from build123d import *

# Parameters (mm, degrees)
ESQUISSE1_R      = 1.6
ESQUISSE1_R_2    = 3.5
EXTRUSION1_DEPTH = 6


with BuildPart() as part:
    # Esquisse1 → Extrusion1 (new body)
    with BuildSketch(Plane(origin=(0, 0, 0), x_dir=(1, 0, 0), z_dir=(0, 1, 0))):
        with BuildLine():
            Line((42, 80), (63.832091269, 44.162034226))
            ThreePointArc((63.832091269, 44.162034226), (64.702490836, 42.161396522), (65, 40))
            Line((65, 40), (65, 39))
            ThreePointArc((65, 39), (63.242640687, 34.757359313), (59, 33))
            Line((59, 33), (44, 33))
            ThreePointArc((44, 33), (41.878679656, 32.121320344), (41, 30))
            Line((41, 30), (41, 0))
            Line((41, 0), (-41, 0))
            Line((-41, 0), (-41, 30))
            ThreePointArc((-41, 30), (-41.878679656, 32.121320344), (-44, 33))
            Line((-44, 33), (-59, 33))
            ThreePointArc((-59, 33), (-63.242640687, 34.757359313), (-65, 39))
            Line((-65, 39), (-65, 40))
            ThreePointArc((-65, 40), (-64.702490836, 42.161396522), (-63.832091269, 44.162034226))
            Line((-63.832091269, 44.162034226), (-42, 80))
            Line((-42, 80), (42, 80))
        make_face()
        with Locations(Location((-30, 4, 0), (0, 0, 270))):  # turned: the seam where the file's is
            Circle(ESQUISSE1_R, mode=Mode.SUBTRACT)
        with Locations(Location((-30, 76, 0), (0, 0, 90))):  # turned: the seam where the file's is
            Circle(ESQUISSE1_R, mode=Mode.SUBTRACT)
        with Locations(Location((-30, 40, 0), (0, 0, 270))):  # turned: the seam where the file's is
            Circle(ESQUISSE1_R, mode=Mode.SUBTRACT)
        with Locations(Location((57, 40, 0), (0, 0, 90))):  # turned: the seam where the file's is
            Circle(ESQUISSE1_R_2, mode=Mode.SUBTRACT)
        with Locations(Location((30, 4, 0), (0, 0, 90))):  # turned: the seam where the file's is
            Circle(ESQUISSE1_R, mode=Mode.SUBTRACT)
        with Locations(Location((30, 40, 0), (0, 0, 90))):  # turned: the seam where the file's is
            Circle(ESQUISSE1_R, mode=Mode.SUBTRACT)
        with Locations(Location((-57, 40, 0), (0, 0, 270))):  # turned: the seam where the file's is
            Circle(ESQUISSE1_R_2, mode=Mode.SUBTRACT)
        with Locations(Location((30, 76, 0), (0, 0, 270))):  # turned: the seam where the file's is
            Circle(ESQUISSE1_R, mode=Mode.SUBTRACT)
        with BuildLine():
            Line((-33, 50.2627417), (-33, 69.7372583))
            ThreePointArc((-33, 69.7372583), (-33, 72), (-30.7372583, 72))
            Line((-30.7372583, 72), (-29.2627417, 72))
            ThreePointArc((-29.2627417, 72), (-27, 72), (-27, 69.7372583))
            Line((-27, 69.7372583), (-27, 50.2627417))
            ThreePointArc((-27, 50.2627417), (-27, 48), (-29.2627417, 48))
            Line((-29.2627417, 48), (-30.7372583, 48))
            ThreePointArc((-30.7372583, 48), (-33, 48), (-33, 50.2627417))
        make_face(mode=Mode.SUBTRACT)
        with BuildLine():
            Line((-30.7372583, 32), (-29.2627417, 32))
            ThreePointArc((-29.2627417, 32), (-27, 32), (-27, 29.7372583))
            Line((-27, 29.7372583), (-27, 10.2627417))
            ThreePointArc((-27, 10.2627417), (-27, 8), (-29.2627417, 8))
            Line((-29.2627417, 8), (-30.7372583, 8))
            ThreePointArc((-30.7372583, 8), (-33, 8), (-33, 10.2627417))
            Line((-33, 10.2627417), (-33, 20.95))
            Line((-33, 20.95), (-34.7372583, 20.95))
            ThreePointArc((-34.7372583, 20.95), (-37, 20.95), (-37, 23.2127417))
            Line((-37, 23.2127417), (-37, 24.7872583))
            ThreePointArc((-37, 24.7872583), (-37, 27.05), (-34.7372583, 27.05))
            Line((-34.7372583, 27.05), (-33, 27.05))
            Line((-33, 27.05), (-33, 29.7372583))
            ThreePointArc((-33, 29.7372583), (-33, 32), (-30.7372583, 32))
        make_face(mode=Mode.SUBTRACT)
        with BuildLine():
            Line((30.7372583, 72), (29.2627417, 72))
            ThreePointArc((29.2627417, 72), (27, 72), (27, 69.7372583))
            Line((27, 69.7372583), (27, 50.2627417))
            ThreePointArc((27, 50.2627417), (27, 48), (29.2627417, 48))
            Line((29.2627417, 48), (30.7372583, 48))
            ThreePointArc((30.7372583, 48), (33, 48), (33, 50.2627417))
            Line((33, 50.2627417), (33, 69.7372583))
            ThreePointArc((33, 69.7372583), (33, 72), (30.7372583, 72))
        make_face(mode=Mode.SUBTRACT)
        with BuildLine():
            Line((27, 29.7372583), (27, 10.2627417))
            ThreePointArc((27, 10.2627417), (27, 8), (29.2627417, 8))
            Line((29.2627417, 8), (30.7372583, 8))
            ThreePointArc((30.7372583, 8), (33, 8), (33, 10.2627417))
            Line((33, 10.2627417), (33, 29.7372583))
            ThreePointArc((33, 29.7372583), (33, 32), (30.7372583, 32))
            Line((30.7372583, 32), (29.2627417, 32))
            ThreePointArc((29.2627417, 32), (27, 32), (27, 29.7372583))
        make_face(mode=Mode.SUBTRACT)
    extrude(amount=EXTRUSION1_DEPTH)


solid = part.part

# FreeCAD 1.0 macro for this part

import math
import FreeCAD as App
import Part
import Sketcher

doc = App.newDocument("Part")
body = doc.addObject("PartDesign::Body", "Body")

# Sketch on XZ plane
sketch1 = doc.addObject("Sketcher::SketchObject", "Sketch")
body.addObject(sketch1)
sketch1.AttachmentSupport = (doc.XZ_Plane, [""])
sketch1.MapMode = "FlatFace"
sketch1.addGeometry([
    Part.LineSegment(App.Vector(63.8, -44.2, 0), App.Vector(42, -80, 0)),  # 0
    Part.LineSegment(App.Vector(42, -80, 0), App.Vector(-42, -80, 0)),  # 1
    Part.LineSegment(App.Vector(-42, -80, 0), App.Vector(-63.8, -44.2, 0)),  # 2
    Part.ArcOfCircle(Part.Circle(App.Vector(-57, -40, 0), App.Vector(0, 0, 1), 8), math.radians(180), math.radians(211)),  # 3
    Part.LineSegment(App.Vector(-65, -40, 0), App.Vector(-65, -39, 0)),  # 4
    Part.ArcOfCircle(Part.Circle(App.Vector(-59, -39, 0), App.Vector(0, 0, 1), 6), math.radians(90), math.radians(180)),  # 5
    Part.LineSegment(App.Vector(-59, -33, 0), App.Vector(-44, -33, 0)),  # 6
    Part.ArcOfCircle(Part.Circle(App.Vector(-44, -30, 0), App.Vector(0, 0, 1), 3), math.radians(-90), math.radians(0)),  # 7
    Part.LineSegment(App.Vector(-41, -30, 0), App.Vector(-41, 0, 0)),  # 8
    Part.LineSegment(App.Vector(-41, 0, 0), App.Vector(41, 0, 0)),  # 9
    Part.LineSegment(App.Vector(41, 0, 0), App.Vector(41, -30, 0)),  # 10
    Part.ArcOfCircle(Part.Circle(App.Vector(44, -30, 0), App.Vector(0, 0, 1), 3), math.radians(180), math.radians(270)),  # 11
    Part.LineSegment(App.Vector(44, -33, 0), App.Vector(59, -33, 0)),  # 12
    Part.ArcOfCircle(Part.Circle(App.Vector(59, -39, 0), App.Vector(0, 0, 1), 6), math.radians(0), math.radians(90)),  # 13
    Part.LineSegment(App.Vector(65, -39, 0), App.Vector(65, -40, 0)),  # 14
    Part.ArcOfCircle(Part.Circle(App.Vector(57, -40, 0), App.Vector(0, 0, 1), 8), math.radians(-31), math.radians(0)),  # 15
    Part.Circle(App.Vector(30, -4, 0), App.Vector(0, 0, 1), 1.6),  # 16
    Part.ArcOfCircle(Part.Circle(App.Vector(28.1, -30.9, 0), App.Vector(0, 0, 1), 1.6), math.radians(135), math.radians(315)),  # 17
    Part.LineSegment(App.Vector(29.3, -32, 0), App.Vector(30.7, -32, 0)),  # 18
    Part.ArcOfCircle(Part.Circle(App.Vector(31.9, -30.9, 0), App.Vector(0, 0, 1), 1.6), math.radians(-135), math.radians(45)),  # 19
    Part.LineSegment(App.Vector(33, -29.7, 0), App.Vector(33, -10.3, 0)),  # 20
    Part.ArcOfCircle(Part.Circle(App.Vector(31.9, -9.1, 0), App.Vector(0, 0, 1), 1.6), math.radians(-45), math.radians(135)),  # 21
    Part.LineSegment(App.Vector(30.7, -8, 0), App.Vector(29.3, -8, 0)),  # 22
    Part.ArcOfCircle(Part.Circle(App.Vector(28.1, -9.1, 0), App.Vector(0, 0, 1), 1.6), math.radians(45), math.radians(225)),  # 23
    Part.LineSegment(App.Vector(27, -10.3, 0), App.Vector(27, -29.7, 0)),  # 24
    Part.Circle(App.Vector(-30, -4, 0), App.Vector(0, 0, 1), 1.6),  # 25
    Part.LineSegment(App.Vector(-30.7, -32, 0), App.Vector(-29.3, -32, 0)),  # 26
    Part.ArcOfCircle(Part.Circle(App.Vector(-28.1, -30.9, 0), App.Vector(0, 0, 1), 1.6), math.radians(-135), math.radians(45)),  # 27
    Part.LineSegment(App.Vector(-27, -29.7, 0), App.Vector(-27, -10.3, 0)),  # 28
    Part.ArcOfCircle(Part.Circle(App.Vector(-28.1, -9.1, 0), App.Vector(0, 0, 1), 1.6), math.radians(-45), math.radians(135)),  # 29
    Part.LineSegment(App.Vector(-29.3, -8, 0), App.Vector(-30.7, -8, 0)),  # 30
    Part.ArcOfCircle(Part.Circle(App.Vector(-31.9, -9.1, 0), App.Vector(0, 0, 1), 1.6), math.radians(45), math.radians(225)),  # 31
    Part.LineSegment(App.Vector(-33, -10.3, 0), App.Vector(-33, -20.9, 0)),  # 32
    Part.LineSegment(App.Vector(-33, -20.9, 0), App.Vector(-34.7, -20.9, 0)),  # 33
    Part.ArcOfCircle(Part.Circle(App.Vector(-35.9, -22.1, 0), App.Vector(0, 0, 1), 1.6), math.radians(45), math.radians(225)),  # 34
    Part.LineSegment(App.Vector(-37, -23.2, 0), App.Vector(-37, -24.8, 0)),  # 35
    Part.ArcOfCircle(Part.Circle(App.Vector(-35.9, -25.9, 0), App.Vector(0, 0, 1), 1.6), math.radians(135), math.radians(315)),  # 36
    Part.LineSegment(App.Vector(-34.7, -27.1, 0), App.Vector(-33, -27.1, 0)),  # 37
    Part.LineSegment(App.Vector(-33, -27.1, 0), App.Vector(-33, -29.7, 0)),  # 38
    Part.ArcOfCircle(Part.Circle(App.Vector(-31.9, -30.9, 0), App.Vector(0, 0, 1), 1.6), math.radians(135), math.radians(315)),  # 39
    Part.Circle(App.Vector(57, -40, 0), App.Vector(0, 0, 1), 3.5),  # 40
    Part.Circle(App.Vector(30, -40, 0), App.Vector(0, 0, 1), 1.6),  # 41
    Part.ArcOfCircle(Part.Circle(App.Vector(31.9, -70.9, 0), App.Vector(0, 0, 1), 1.6), math.radians(-135), math.radians(45)),  # 42
    Part.LineSegment(App.Vector(33, -69.7, 0), App.Vector(33, -50.3, 0)),  # 43
    Part.ArcOfCircle(Part.Circle(App.Vector(31.9, -49.1, 0), App.Vector(0, 0, 1), 1.6), math.radians(-45), math.radians(135)),  # 44
    Part.LineSegment(App.Vector(30.7, -48, 0), App.Vector(29.3, -48, 0)),  # 45
    Part.ArcOfCircle(Part.Circle(App.Vector(28.1, -49.1, 0), App.Vector(0, 0, 1), 1.6), math.radians(45), math.radians(225)),  # 46
    Part.LineSegment(App.Vector(27, -50.3, 0), App.Vector(27, -69.7, 0)),  # 47
    Part.ArcOfCircle(Part.Circle(App.Vector(28.1, -70.9, 0), App.Vector(0, 0, 1), 1.6), math.radians(135), math.radians(315)),  # 48
    Part.LineSegment(App.Vector(29.3, -72, 0), App.Vector(30.7, -72, 0)),  # 49
    Part.Circle(App.Vector(30, -76, 0), App.Vector(0, 0, 1), 1.6),  # 50
    Part.Circle(App.Vector(-30, -40, 0), App.Vector(0, 0, 1), 1.6),  # 51
    Part.Circle(App.Vector(-57, -40, 0), App.Vector(0, 0, 1), 3.5),  # 52
    Part.LineSegment(App.Vector(-33, -50.3, 0), App.Vector(-33, -69.7, 0)),  # 53
    Part.ArcOfCircle(Part.Circle(App.Vector(-31.9, -70.9, 0), App.Vector(0, 0, 1), 1.6), math.radians(135), math.radians(315)),  # 54
    Part.LineSegment(App.Vector(-30.7, -72, 0), App.Vector(-29.3, -72, 0)),  # 55
    Part.ArcOfCircle(Part.Circle(App.Vector(-28.1, -70.9, 0), App.Vector(0, 0, 1), 1.6), math.radians(-135), math.radians(45)),  # 56
    Part.LineSegment(App.Vector(-27, -69.7, 0), App.Vector(-27, -50.3, 0)),  # 57
    Part.ArcOfCircle(Part.Circle(App.Vector(-28.1, -49.1, 0), App.Vector(0, 0, 1), 1.6), math.radians(-45), math.radians(135)),  # 58
    Part.LineSegment(App.Vector(-29.3, -48, 0), App.Vector(-30.7, -48, 0)),  # 59
    Part.ArcOfCircle(Part.Circle(App.Vector(-31.9, -49.1, 0), App.Vector(0, 0, 1), 1.6), math.radians(45), math.radians(225)),  # 60
    Part.Circle(App.Vector(-30, -76, 0), App.Vector(0, 0, 1), 1.6),  # 61
], False)
sketch1.addConstraint([
    Sketcher.Constraint("Coincident", 0, 2, 1, 1),
    Sketcher.Constraint("Coincident", 1, 2, 2, 1),
    Sketcher.Constraint("Tangent", 2, 2, 3, 2),
    Sketcher.Constraint("Tangent", 3, 1, 4, 1),
    Sketcher.Constraint("Tangent", 4, 2, 5, 2),
    Sketcher.Constraint("Tangent", 5, 1, 6, 1),
    Sketcher.Constraint("Tangent", 6, 2, 7, 1),
    Sketcher.Constraint("Tangent", 7, 2, 8, 1),
    Sketcher.Constraint("Coincident", 8, 2, 9, 1),
    Sketcher.Constraint("Coincident", 9, 2, 10, 1),
    Sketcher.Constraint("Tangent", 10, 2, 11, 1),
    Sketcher.Constraint("Tangent", 11, 2, 12, 1),
    Sketcher.Constraint("Tangent", 12, 2, 13, 2),
    Sketcher.Constraint("Tangent", 13, 1, 14, 1),
    Sketcher.Constraint("Tangent", 14, 2, 15, 2),
    Sketcher.Constraint("Tangent", 15, 1, 0, 1),
    Sketcher.Constraint("Coincident", 17, 2, 18, 1),
    Sketcher.Constraint("Coincident", 18, 2, 19, 1),
    Sketcher.Constraint("Coincident", 19, 2, 20, 1),
    Sketcher.Constraint("Coincident", 20, 2, 21, 1),
    Sketcher.Constraint("Coincident", 21, 2, 22, 1),
    Sketcher.Constraint("Coincident", 22, 2, 23, 1),
    Sketcher.Constraint("Coincident", 23, 2, 24, 1),
    Sketcher.Constraint("Coincident", 24, 2, 17, 1),
    Sketcher.Constraint("Coincident", 26, 2, 27, 1),
    Sketcher.Constraint("Coincident", 27, 2, 28, 1),
    Sketcher.Constraint("Coincident", 28, 2, 29, 1),
    Sketcher.Constraint("Coincident", 29, 2, 30, 1),
    Sketcher.Constraint("Coincident", 30, 2, 31, 1),
    Sketcher.Constraint("Coincident", 31, 2, 32, 1),
    Sketcher.Constraint("Coincident", 32, 2, 33, 1),
    Sketcher.Constraint("Coincident", 33, 2, 34, 1),
    Sketcher.Constraint("Coincident", 34, 2, 35, 1),
    Sketcher.Constraint("Coincident", 35, 2, 36, 1),
    Sketcher.Constraint("Coincident", 36, 2, 37, 1),
    Sketcher.Constraint("Coincident", 37, 2, 38, 1),
    Sketcher.Constraint("Coincident", 38, 2, 39, 1),
    Sketcher.Constraint("Coincident", 39, 2, 26, 1),
    Sketcher.Constraint("Coincident", 42, 2, 43, 1),
    Sketcher.Constraint("Coincident", 43, 2, 44, 1),
    Sketcher.Constraint("Coincident", 44, 2, 45, 1),
    Sketcher.Constraint("Coincident", 45, 2, 46, 1),
    Sketcher.Constraint("Coincident", 46, 2, 47, 1),
    Sketcher.Constraint("Coincident", 47, 2, 48, 1),
    Sketcher.Constraint("Coincident", 48, 2, 49, 1),
    Sketcher.Constraint("Coincident", 49, 2, 42, 1),
    Sketcher.Constraint("Coincident", 53, 2, 54, 1),
    Sketcher.Constraint("Coincident", 54, 2, 55, 1),
    Sketcher.Constraint("Coincident", 55, 2, 56, 1),
    Sketcher.Constraint("Coincident", 56, 2, 57, 1),
    Sketcher.Constraint("Coincident", 57, 2, 58, 1),
    Sketcher.Constraint("Coincident", 58, 2, 59, 1),
    Sketcher.Constraint("Coincident", 59, 2, 60, 1),
    Sketcher.Constraint("Coincident", 60, 2, 53, 1),
    Sketcher.Constraint("Horizontal", 1),
    Sketcher.Constraint("Vertical", 4),
    Sketcher.Constraint("Horizontal", 6),
    Sketcher.Constraint("Vertical", 8),
    Sketcher.Constraint("Horizontal", 9),
    Sketcher.Constraint("Vertical", 10),
    Sketcher.Constraint("Horizontal", 12),
    Sketcher.Constraint("Vertical", 14),
    Sketcher.Constraint("Horizontal", 18),
    Sketcher.Constraint("Vertical", 20),
    Sketcher.Constraint("Horizontal", 22),
    Sketcher.Constraint("Vertical", 24),
    Sketcher.Constraint("Horizontal", 26),
    Sketcher.Constraint("Vertical", 28),
    Sketcher.Constraint("Horizontal", 30),
    Sketcher.Constraint("Vertical", 32),
    Sketcher.Constraint("Horizontal", 33),
    Sketcher.Constraint("Vertical", 35),
    Sketcher.Constraint("Horizontal", 37),
    Sketcher.Constraint("Vertical", 38),
    Sketcher.Constraint("Vertical", 43),
    Sketcher.Constraint("Horizontal", 45),
    Sketcher.Constraint("Vertical", 47),
    Sketcher.Constraint("Horizontal", 49),
    Sketcher.Constraint("Vertical", 53),
    Sketcher.Constraint("Horizontal", 55),
    Sketcher.Constraint("Vertical", 57),
    Sketcher.Constraint("Horizontal", 59),
    Sketcher.Constraint("Coincident", 40, 3, 15, 3),
    Sketcher.Constraint("Coincident", 52, 3, 3, 3),
    Sketcher.Constraint("Equal", 7, 11),
    Sketcher.Constraint("Equal", 5, 13),
    Sketcher.Constraint("Equal", 3, 15),
    Sketcher.Constraint("Equal", 16, 17),
    Sketcher.Constraint("Equal", 17, 19),
    Sketcher.Constraint("Equal", 19, 21),
    Sketcher.Constraint("Equal", 21, 23),
    Sketcher.Constraint("Equal", 23, 25),
    Sketcher.Constraint("Equal", 25, 27),
    Sketcher.Constraint("Equal", 27, 29),
    Sketcher.Constraint("Equal", 29, 31),
    Sketcher.Constraint("Equal", 31, 34),
    Sketcher.Constraint("Equal", 34, 36),
    Sketcher.Constraint("Equal", 36, 39),
    Sketcher.Constraint("Equal", 39, 41),
    Sketcher.Constraint("Equal", 41, 42),
    Sketcher.Constraint("Equal", 42, 44),
    Sketcher.Constraint("Equal", 44, 46),
    Sketcher.Constraint("Equal", 46, 48),
    Sketcher.Constraint("Equal", 48, 50),
    Sketcher.Constraint("Equal", 50, 51),
    Sketcher.Constraint("Equal", 40, 52),
    Sketcher.Constraint("Equal", 51, 54),
    Sketcher.Constraint("Equal", 54, 56),
    Sketcher.Constraint("Equal", 56, 58),
    Sketcher.Constraint("Equal", 58, 60),
    Sketcher.Constraint("Equal", 60, 61),
    Sketcher.Constraint("Symmetric", 8, 2, 9, 2, -1, 1),
    Sketcher.Constraint("Symmetric", 5, 3, 13, 3, -2),
    Sketcher.Constraint("Symmetric", 16, 3, 25, 3, -2),
    Sketcher.Constraint("Symmetric", 17, 3, 27, 3, -2),
    Sketcher.Constraint("Symmetric", 23, 3, 29, 3, -2),
    Sketcher.Constraint("Symmetric", 21, 3, 31, 3, -2),
    Sketcher.Constraint("Symmetric", 19, 3, 39, 3, -2),
    Sketcher.Constraint("Symmetric", 41, 3, 51, 3, -2),
    Sketcher.Constraint("Symmetric", 42, 3, 54, 3, -2),
    Sketcher.Constraint("Symmetric", 48, 3, 56, 3, -2),
    Sketcher.Constraint("Symmetric", 46, 3, 58, 3, -2),
    Sketcher.Constraint("Symmetric", 44, 3, 60, 3, -2),
    Sketcher.Constraint("Symmetric", 50, 3, 61, 3, -2),
    Sketcher.Constraint("Symmetric", 2, 2, 15, 1, -2),
    Sketcher.Constraint("Horizontal", 17, 3, 19, 3),
    Sketcher.Constraint("Horizontal", 21, 3, 23, 3),
    Sketcher.Constraint("Horizontal", 40, 3, 41, 3),
    Sketcher.Constraint("Horizontal", 44, 3, 46, 3),
    Sketcher.Constraint("Horizontal", 42, 3, 48, 3),
    Sketcher.Constraint("Horizontal", 20, 2, 23, 2),
    Sketcher.Constraint("Horizontal", 19, 2, 24, 2),
    Sketcher.Constraint("Horizontal", 18, 2, 26, 2),
    Sketcher.Constraint("Horizontal", 24, 2, 27, 2),
    Sketcher.Constraint("Horizontal", 22, 2, 29, 2),
    Sketcher.Constraint("Horizontal", 28, 2, 31, 2),
    Sketcher.Constraint("Horizontal", 27, 2, 38, 2),
    Sketcher.Constraint("Horizontal", 43, 2, 46, 2),
    Sketcher.Constraint("Horizontal", 42, 2, 47, 2),
    Sketcher.Constraint("Horizontal", 47, 2, 53, 2),
    Sketcher.Constraint("Horizontal", 49, 2, 54, 2),
    Sketcher.Constraint("Horizontal", 53, 2, 56, 2),
    Sketcher.Constraint("Horizontal", 45, 2, 58, 2),
    Sketcher.Constraint("Vertical", 19, 3, 21, 3),
    Sketcher.Constraint("Vertical", 34, 3, 36, 3),
    Sketcher.Constraint("Vertical", 16, 3, 41, 3),
    Sketcher.Constraint("Vertical", 21, 3, 42, 3),
    Sketcher.Constraint("Vertical", 42, 3, 44, 3),
    Sketcher.Constraint("Vertical", 23, 3, 46, 3),
    Sketcher.Constraint("Vertical", 41, 3, 50, 3),
    Sketcher.Constraint("Vertical", 18, 2, 21, 2),
    Sketcher.Constraint("Vertical", 33, 2, 36, 2),
    Sketcher.Constraint("Vertical", 20, 2, 42, 2),
    Sketcher.Constraint("Vertical", 21, 2, 44, 2),
    Sketcher.Constraint("Vertical", 45, 2, 48, 2),
    Sketcher.Constraint("Equal", 28, 43),
    Sketcher.Constraint("Diameter", 40, 7.0),
    Sketcher.Constraint("Radius", 3, 8.0),
    Sketcher.Constraint("Radius", 5, 6.0),
    Sketcher.Constraint("Radius", 7, 3.0),
    Sketcher.Constraint("Diameter", 16, 3.2),
    Sketcher.Constraint("DistanceX", 1, 2, 1, 1, 84.0),
    Sketcher.Constraint("DistanceX", 6, 1, 6, 2, 15.0),
    Sketcher.Constraint("DistanceX", 9, 1, 9, 2, 82.0),
    Sketcher.Constraint("DistanceY", 4, 1, 4, 2, 1.0),
    Sketcher.Constraint("DistanceY", 8, 1, 8, 2, 30.0),
    Sketcher.Constraint("DistanceX", -1, 1, 16, 3, 30.0),
    Sketcher.Constraint("DistanceY", 16, 3, -1, 1, 4.0),
    Sketcher.Constraint("DistanceY", 50, 3, -1, 1, 76.0),
    Sketcher.Constraint("DistanceY", 0, 2, -1, 1, 80.0),
    Sketcher.Constraint("DistanceY", 17, 2, -1, 1, 32.0),
    Sketcher.Constraint("DistanceX", -1, 1, 19, 2, 33.0),
    Sketcher.Constraint("DistanceY", 21, 2, -1, 1, 8.0),
    Sketcher.Constraint("DistanceX", -1, 1, 23, 2, 27.0),
    Sketcher.Constraint("DistanceX", 34, 2, -1, 1, 37.0),
    Sketcher.Constraint("DistanceY", 44, 2, -1, 1, 48.0),
    Sketcher.Constraint("DistanceY", 32, 2, -1, 1, 20.95),
    Sketcher.Constraint("DistanceY", 36, 2, -1, 1, 27.05),
    Sketcher.Constraint("DistanceX", 33, 2, 33, 1, 1.737258),
    Sketcher.Constraint("DistanceY", 32, 2, 32, 1, 10.687258),
    Sketcher.Constraint("DistanceX", -1, 1, 17, 3, 28.131371),
    Sketcher.Constraint("DistanceX", 34, 3, -1, 1, 35.868629),
])
pad1 = doc.addObject("PartDesign::Pad", "Pad")
body.addObject(pad1)
pad1.Profile = sketch1
pad1.Length = 6
pad1.Reversed = True

doc.recompute()
